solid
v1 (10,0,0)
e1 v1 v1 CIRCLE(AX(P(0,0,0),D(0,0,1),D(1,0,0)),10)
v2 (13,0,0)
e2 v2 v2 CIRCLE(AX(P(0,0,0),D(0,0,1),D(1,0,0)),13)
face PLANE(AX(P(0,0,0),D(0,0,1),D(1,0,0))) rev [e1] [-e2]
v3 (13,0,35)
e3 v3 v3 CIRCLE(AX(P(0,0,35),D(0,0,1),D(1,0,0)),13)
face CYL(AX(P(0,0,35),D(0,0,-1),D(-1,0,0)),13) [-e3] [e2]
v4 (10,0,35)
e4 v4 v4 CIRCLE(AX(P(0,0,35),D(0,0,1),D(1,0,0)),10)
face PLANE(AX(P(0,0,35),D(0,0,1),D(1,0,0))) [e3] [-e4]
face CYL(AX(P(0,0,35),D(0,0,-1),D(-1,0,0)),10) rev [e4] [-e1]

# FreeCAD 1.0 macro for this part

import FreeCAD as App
import Part
import Sketcher

V = App.Vector

doc = App.newDocument("Part")
body = doc.addObject("PartDesign::Body", "Body")

# Sketch on XY plane
sketch1 = body.newObject("Sketcher::SketchObject", "Sketch")
sketch1.AttachmentSupport = (doc.getObject("XY_Plane"), [""])
sketch1.MapMode = "FlatFace"
sketch1.addGeometry([
    Part.Circle(V(0, 0, 0), V(0, 0, 1), 13),
    Part.Circle(V(0, 0, 0), V(0, 0, 1), 10),
], False)
sketch1.addConstraint([
    Sketcher.Constraint("Coincident", 0, 3, -1, 1),
    Sketcher.Constraint("Coincident", 1, 3, -1, 1),
    Sketcher.Constraint("Diameter", 0, 26.0),
    Sketcher.Constraint("Diameter", 1, 20.0),
])
pad1 = body.newObject("PartDesign::Pad", "Pad")
pad1.Profile = sketch1
pad1.Length = 35

doc.recompute()
